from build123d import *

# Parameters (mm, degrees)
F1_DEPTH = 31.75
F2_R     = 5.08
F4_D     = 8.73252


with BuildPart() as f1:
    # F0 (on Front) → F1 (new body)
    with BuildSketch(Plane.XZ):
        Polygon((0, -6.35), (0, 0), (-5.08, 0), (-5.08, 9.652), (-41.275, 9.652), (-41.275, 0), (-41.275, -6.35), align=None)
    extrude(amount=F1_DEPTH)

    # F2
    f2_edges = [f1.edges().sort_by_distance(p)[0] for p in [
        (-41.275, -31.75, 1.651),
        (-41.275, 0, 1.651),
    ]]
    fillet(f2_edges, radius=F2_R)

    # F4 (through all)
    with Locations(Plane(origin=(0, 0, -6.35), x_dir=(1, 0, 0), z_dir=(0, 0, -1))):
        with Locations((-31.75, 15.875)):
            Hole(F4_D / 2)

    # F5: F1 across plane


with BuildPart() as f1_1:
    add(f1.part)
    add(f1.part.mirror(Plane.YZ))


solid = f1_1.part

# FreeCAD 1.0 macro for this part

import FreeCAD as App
import Part
import Sketcher
from FreeCAD import Vector
Q = App.Units.Quantity


def edges_at(feature, points):
    """Names of the edges that pass closest to the given points."""
    edges = feature.Shape.Edges
    near = lambda p: min(range(len(edges)), key=lambda i: edges[i].distToShape(Part.Vertex(*p))[0])
    return sorted({f"Edge{near(p) + 1}" for p in points})


def add_polygon(sketch, points):
    """Adds a closed chain of lines whose ends are joined by coincident constraints."""
    first, n = sketch.GeometryCount, len(points)
    for a, b in zip(points, points[1:] + points[:1]):
        sketch.addGeometry(Part.LineSegment(App.Vector(*a, 0), App.Vector(*b, 0)), False)
    for i in range(n):
        sketch.addConstraint(Sketcher.Constraint("Coincident", first + i, 2, first + (i + 1) % n, 1))

doc = App.newDocument("Part")
params = doc.addObject("Spreadsheet::Sheet", "Params")
for row, (alias, value) in enumerate([
    ("sketch1_width", "0.2 in"),
    ("sketch1_height", "0.25 in"),
    ("sketch1_height2", "0.38 in"),
    ("sketch1_width2", "1.425 in"),
    ("pad1_length", "1.25 in"),
    ("fillet_radius", "0.2 in"),
    ("hole_diameter", "0.3438 in"),
], start=1):
    params.set(f"A{row}", alias)
    params.set(f"B{row}", "=" + value)
    params.setAlias(f"B{row}", alias)

body = doc.addObject("PartDesign::Body", "Body")

sketch1 = body.newObject("Sketcher::SketchObject", "Sketch")
sketch1.AttachmentSupport = (doc.getObject("XZ_Plane"), [""])
sketch1.MapMode = "FlatFace"
add_polygon(sketch1, [(0, -6.35), (0, 0), (-5.08, 0), (-5.08, 9.652), (-41.275, 9.652), (-41.275, -6.35)])
sketch1.addConstraint(Sketcher.Constraint("Vertical", 0))
sketch1.addConstraint(Sketcher.Constraint("Horizontal", 1))
sketch1.addConstraint(Sketcher.Constraint("Vertical", 2))
sketch1.addConstraint(Sketcher.Constraint("Horizontal", 3))
sketch1.addConstraint(Sketcher.Constraint("Vertical", 4))
sketch1.addConstraint(Sketcher.Constraint("Horizontal", 5))
sketch1.addConstraint(Sketcher.Constraint("Coincident", 0, 2, -1, 1))
sketch1.addConstraint(Sketcher.Constraint("DistanceX", 1, 2, 1, 1, Q("0.2 in")))
sketch1.addConstraint(Sketcher.Constraint("DistanceY", 0, 1, 0, 2, Q("0.25 in")))
sketch1.addConstraint(Sketcher.Constraint("DistanceY", 2, 1, 2, 2, Q("0.38 in")))
sketch1.addConstraint(Sketcher.Constraint("DistanceX", 3, 2, 3, 1, Q("1.425 in")))
sketch1.setExpression("Constraints[13]", "Params.sketch1_width")
sketch1.setExpression("Constraints[14]", "Params.sketch1_height")
sketch1.setExpression("Constraints[15]", "Params.sketch1_height2")
sketch1.setExpression("Constraints[16]", "Params.sketch1_width2")
pad1 = body.newObject("PartDesign::Pad", "Pad")
pad1.Profile = sketch1
pad1.setExpression("Length", "Params.pad1_length")
doc.recompute()

fillet = body.newObject("PartDesign::Fillet", "Fillet")
fillet.Base = (pad1, edges_at(pad1, [(-41.275, -31.75, 1.651), (-41.275, 0, 1.651)]))
fillet.setExpression("Radius", "Params.fillet_radius")

sketch2 = body.newObject("Sketcher::SketchObject", "Sketch001")
sketch2.AttachmentSupport = (doc.getObject("XY_Plane"), [""])
sketch2.MapMode = "FlatFace"
sketch2.AttachmentOffset = App.Placement(Vector(0, 0, -0.25 * 25.4), App.Rotation())
sketch2.addGeometry(Part.Circle(Vector(-31.75, -15.875, 0), Vector(0, 0, 1), 4.36626), False)
sketch2.addConstraint(Sketcher.Constraint("Diameter", 0, Q("0.3438 in")))
sketch2.addConstraint(Sketcher.Constraint("DistanceX", 0, 3, -1, 1, Q("1.25 in")))
sketch2.addConstraint(Sketcher.Constraint("DistanceY", 0, 3, -1, 1, Q("0.625 in")))
doc.recompute()
hole = body.newObject("PartDesign::Hole", "Hole")
hole.Profile = sketch2
hole.ThreadType = "None"
hole.setExpression("Diameter", "Params.hole_diameter")
hole.DepthType = "ThroughAll"
hole.Reversed = True
body2 = doc.addObject("PartDesign::Body", "Body001")
doc.recompute()

body2.BaseFeature = body
doc.recompute()

mirroring = doc.addObject("Part::Mirroring", "Mirroring")
mirroring.Source = body
mirroring.Base = Vector(0, 0, 0)
mirroring.Normal = Vector(1, 0, 0)
body3 = doc.addObject("PartDesign::Body", "Body002")
body3.BaseFeature = mirroring
boolean = body2.newObject("PartDesign::Boolean", "Boolean")
boolean.Type = "Fuse"
boolean.addObjects([body3])
doc.recompute()
mirroring.Visibility = False

doc.recompute()
